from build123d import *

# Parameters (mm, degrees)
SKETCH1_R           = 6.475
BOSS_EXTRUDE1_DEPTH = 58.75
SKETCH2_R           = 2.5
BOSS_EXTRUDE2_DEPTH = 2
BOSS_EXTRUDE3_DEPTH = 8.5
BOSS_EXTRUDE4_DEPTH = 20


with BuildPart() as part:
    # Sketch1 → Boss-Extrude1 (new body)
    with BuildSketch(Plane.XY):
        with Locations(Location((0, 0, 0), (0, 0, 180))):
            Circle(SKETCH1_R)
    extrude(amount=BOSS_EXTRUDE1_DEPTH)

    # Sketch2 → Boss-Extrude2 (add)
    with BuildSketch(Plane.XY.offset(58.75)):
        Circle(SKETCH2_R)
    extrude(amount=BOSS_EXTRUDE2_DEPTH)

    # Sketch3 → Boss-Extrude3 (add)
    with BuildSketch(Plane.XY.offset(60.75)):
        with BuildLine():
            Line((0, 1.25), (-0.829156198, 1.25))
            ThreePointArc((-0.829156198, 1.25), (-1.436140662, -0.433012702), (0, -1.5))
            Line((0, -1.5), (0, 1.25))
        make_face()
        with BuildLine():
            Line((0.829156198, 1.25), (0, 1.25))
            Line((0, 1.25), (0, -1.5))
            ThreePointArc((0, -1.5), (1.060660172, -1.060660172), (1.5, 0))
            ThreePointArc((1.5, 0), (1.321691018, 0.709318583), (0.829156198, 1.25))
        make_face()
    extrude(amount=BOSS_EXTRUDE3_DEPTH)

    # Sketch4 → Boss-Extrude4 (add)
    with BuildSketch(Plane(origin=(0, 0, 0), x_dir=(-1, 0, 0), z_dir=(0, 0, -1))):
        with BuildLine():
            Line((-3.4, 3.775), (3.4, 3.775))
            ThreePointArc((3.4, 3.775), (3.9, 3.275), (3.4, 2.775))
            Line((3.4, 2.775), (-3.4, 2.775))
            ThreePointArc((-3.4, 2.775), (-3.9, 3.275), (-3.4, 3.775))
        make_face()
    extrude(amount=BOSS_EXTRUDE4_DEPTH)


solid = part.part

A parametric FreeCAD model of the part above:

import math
import FreeCAD as App
import Part
import Sketcher
from FreeCAD import Vector

doc = App.newDocument("Part")
body = doc.addObject("PartDesign::Body", "Body")

# Sketch on XY plane
sketch1 = doc.addObject("Sketcher::SketchObject", "Sketch")
body.addObject(sketch1)
sketch1.AttachmentSupport = (doc.XY_Plane, [""])
sketch1.MapMode = "FlatFace"
sketch1.addGeometry(Part.Circle(Vector(0, 0, 0), Vector(0, 0, 1), 6), False)
sketch1.addConstraint(Sketcher.Constraint("Coincident", 0, 3, -1, 1))
sketch1.addConstraint(Sketcher.Constraint("Diameter", 0, 12.95))
pad1 = doc.addObject("PartDesign::Pad", "Pad")
body.addObject(pad1)
pad1.Profile = sketch1
pad1.Length = 58.75

# Sketch on XY plane
sketch2 = doc.addObject("Sketcher::SketchObject", "Sketch001")
body.addObject(sketch2)
sketch2.AttachmentSupport = (doc.XY_Plane, [""])
sketch2.MapMode = "FlatFace"
sketch2.AttachmentOffset = App.Placement(Vector(0, 0, 58.75), App.Rotation())
sketch2.addGeometry(Part.Circle(Vector(0, 0, 0), Vector(0, 0, 1), 2.5), False)
sketch2.addConstraint(Sketcher.Constraint("Coincident", 0, 3, -1, 1))
sketch2.addConstraint(Sketcher.Constraint("Diameter", 0, 5.0))
pad2 = doc.addObject("PartDesign::Pad", "Pad001")
body.addObject(pad2)
pad2.Profile = sketch2
pad2.Length = 2

# Sketch on XY plane
sketch3 = doc.addObject("Sketcher::SketchObject", "Sketch002")
body.addObject(sketch3)
sketch3.AttachmentSupport = (doc.XY_Plane, [""])
sketch3.MapMode = "FlatFace"
sketch3.AttachmentOffset = App.Placement(Vector(0, 0, 60.75), App.Rotation())
sketch3.addGeometry(Part.ArcOfCircle(Part.Circle(Vector(0, 0, 0), Vector(0, 0, 1), 1.5), math.radians(124), math.radians(270)), False)
sketch3.addGeometry(Part.ArcOfCircle(Part.Circle(Vector(0, 0, 0), Vector(0, 0, 1), 1.5), math.radians(-90), math.radians(0)), False)
sketch3.addGeometry(Part.ArcOfCircle(Part.Circle(Vector(0, 0, 0), Vector(0, 0, 1), 1.5), math.radians(0), math.radians(56)), False)
sketch3.addGeometry(Part.LineSegment(Vector(0.8, 1.2, 0), Vector(-0.8, 1.2, 0)), False)
sketch3.addConstraint(Sketcher.Constraint("Tangent", 0, 2, 1, 1))
sketch3.addConstraint(Sketcher.Constraint("Tangent", 1, 2, 2, 1))
sketch3.addConstraint(Sketcher.Constraint("Coincident", 2, 2, 3, 1))
sketch3.addConstraint(Sketcher.Constraint("Coincident", 3, 2, 0, 1))
sketch3.addConstraint(Sketcher.Constraint("Horizontal", 3))
sketch3.addConstraint(Sketcher.Constraint("Coincident", 0, 3, -1, 1))
sketch3.addConstraint(Sketcher.Constraint("Coincident", 2, 3, -1, 1))
sketch3.addConstraint(Sketcher.Constraint("PointOnObject", 0, 2, -2))
sketch3.addConstraint(Sketcher.Constraint("PointOnObject", 1, 2, -1))
sketch3.addConstraint(Sketcher.Constraint("Radius", 0, 1.5))
sketch3.addConstraint(Sketcher.Constraint("DistanceY", -1, 1, 2, 2, 1.25))
pad3 = doc.addObject("PartDesign::Pad", "Pad002")
body.addObject(pad3)
pad3.Profile = sketch3
pad3.Length = 8.5

# Sketch on XY plane
sketch4 = doc.addObject("Sketcher::SketchObject", "Sketch003")
body.addObject(sketch4)
sketch4.AttachmentSupport = (doc.XY_Plane, [""])
sketch4.MapMode = "FlatFace"
sketch4.addGeometry(Part.LineSegment(Vector(-3.4, 3.8, 0), Vector(3.4, 3.8, 0)), False)
sketch4.addGeometry(Part.ArcOfCircle(Part.Circle(Vector(3.4, 3.3, 0), Vector(0, 0, 1), 0.5), math.radians(-90), math.radians(90)), False)
sketch4.addGeometry(Part.LineSegment(Vector(3.4, 2.8, 0), Vector(-3.4, 2.8, 0)), False)
sketch4.addGeometry(Part.ArcOfCircle(Part.Circle(Vector(-3.4, 3.3, 0), Vector(0, 0, 1), 0.5), math.radians(90), math.radians(270)), False)
sketch4.addConstraint(Sketcher.Constraint("Tangent", 0, 2, 1, 2))
sketch4.addConstraint(Sketcher.Constraint("Tangent", 1, 1, 2, 1))
sketch4.addConstraint(Sketcher.Constraint("Tangent", 2, 2, 3, 2))
sketch4.addConstraint(Sketcher.Constraint("Tangent", 3, 1, 0, 1))
sketch4.addConstraint(Sketcher.Constraint("Horizontal", 0))
sketch4.addConstraint(Sketcher.Constraint("Horizontal", 2))
sketch4.addConstraint(Sketcher.Constraint("Radius", 1, 0.5))
sketch4.addConstraint(Sketcher.Constraint("DistanceX", 0, 1, 0, 2, 6.8))
sketch4.addConstraint(Sketcher.Constraint("DistanceX", -1, 1, 1, 3, 3.4))
sketch4.addConstraint(Sketcher.Constraint("DistanceY", -1, 1, 1, 3, 3.275))
pad4 = doc.addObject("PartDesign::Pad", "Pad003")
body.addObject(pad4)
pad4.Profile = sketch4
pad4.Length = 20
pad4.Reversed = True

doc.recompute()
